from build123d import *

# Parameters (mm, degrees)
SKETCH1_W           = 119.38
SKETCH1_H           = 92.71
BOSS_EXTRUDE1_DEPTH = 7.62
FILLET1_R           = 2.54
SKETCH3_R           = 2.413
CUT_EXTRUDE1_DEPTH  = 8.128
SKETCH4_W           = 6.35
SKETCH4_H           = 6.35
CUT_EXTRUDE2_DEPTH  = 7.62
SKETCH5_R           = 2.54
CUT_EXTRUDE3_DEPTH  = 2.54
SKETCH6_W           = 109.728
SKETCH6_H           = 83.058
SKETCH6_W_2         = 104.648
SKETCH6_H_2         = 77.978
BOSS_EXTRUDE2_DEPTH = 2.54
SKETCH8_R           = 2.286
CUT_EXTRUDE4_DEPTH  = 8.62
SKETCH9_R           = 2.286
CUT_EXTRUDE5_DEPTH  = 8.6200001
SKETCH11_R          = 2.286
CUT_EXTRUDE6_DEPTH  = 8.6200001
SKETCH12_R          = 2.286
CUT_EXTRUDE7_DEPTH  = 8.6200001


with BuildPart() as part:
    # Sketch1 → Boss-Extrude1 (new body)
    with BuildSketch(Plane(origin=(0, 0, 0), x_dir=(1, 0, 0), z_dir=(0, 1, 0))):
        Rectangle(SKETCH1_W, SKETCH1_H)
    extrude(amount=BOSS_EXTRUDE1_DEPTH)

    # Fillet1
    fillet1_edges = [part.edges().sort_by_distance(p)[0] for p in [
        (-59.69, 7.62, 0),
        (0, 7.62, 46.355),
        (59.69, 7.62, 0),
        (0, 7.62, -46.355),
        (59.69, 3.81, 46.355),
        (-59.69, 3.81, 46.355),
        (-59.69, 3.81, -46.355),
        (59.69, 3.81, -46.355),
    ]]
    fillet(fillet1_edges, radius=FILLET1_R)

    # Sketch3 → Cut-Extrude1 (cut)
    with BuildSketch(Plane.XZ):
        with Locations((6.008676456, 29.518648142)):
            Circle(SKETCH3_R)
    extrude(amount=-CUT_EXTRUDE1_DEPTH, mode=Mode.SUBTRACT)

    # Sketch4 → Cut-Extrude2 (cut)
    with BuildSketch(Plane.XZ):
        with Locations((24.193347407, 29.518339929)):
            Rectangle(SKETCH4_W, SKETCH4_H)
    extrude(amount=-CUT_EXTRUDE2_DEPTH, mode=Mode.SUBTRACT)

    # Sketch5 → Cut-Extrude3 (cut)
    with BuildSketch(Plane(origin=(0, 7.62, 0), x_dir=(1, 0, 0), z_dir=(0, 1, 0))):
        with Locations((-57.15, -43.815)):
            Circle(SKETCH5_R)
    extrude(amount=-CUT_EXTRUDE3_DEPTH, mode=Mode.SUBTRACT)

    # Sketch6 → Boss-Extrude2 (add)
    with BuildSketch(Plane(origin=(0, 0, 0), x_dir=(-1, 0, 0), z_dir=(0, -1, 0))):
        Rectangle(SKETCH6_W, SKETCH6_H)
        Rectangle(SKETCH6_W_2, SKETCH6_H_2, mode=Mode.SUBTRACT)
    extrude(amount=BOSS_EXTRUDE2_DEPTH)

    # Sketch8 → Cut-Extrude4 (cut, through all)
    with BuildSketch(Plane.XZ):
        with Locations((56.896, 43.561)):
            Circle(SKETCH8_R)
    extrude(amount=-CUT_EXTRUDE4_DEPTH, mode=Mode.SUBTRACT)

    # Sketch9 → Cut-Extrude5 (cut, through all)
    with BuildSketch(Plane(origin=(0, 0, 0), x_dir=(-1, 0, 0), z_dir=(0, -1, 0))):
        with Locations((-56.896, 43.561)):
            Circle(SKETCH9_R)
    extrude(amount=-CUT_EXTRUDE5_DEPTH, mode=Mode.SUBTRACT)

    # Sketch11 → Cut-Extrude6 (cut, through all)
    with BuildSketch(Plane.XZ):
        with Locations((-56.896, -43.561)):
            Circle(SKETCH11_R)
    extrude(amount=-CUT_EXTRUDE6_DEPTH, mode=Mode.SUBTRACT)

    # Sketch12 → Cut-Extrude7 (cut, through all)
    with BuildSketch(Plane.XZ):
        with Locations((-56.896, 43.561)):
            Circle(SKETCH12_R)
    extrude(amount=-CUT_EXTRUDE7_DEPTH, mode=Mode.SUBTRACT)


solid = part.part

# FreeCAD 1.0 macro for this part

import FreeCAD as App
import Part
import Sketcher
from FreeCAD import Vector
Q = App.Units.Quantity


def edges_at(feature, points):
    """Names of the edges that pass closest to the given points."""
    edges = feature.Shape.Edges
    near = lambda p: min(range(len(edges)), key=lambda i: edges[i].distToShape(Part.Vertex(*p))[0])
    return sorted({f"Edge{near(p) + 1}" for p in points})


def add_polygon(sketch, points):
    """Adds a closed chain of lines whose ends are joined by coincident constraints."""
    first, n = sketch.GeometryCount, len(points)
    for a, b in zip(points, points[1:] + points[:1]):
        sketch.addGeometry(Part.LineSegment(App.Vector(*a, 0), App.Vector(*b, 0)), False)
    for i in range(n):
        sketch.addConstraint(Sketcher.Constraint("Coincident", first + i, 2, first + (i + 1) % n, 1))

doc = App.newDocument("Part")
body = doc.addObject("PartDesign::Body", "Body")

# Sketch on XZ plane
sketch1 = doc.addObject("Sketcher::SketchObject", "Sketch")
body.addObject(sketch1)
sketch1.AttachmentSupport = (doc.XZ_Plane, [""])
sketch1.MapMode = "FlatFace"
add_polygon(sketch1, [(-59.69, -46.355), (-59.69, 46.355), (59.69, 46.355), (59.69, -46.355)])  # lines 0-3
sketch1.addConstraint([
    Sketcher.Constraint("Vertical", 0),
    Sketcher.Constraint("Horizontal", 1),
    Sketcher.Constraint("Vertical", 2),
    Sketcher.Constraint("Horizontal", 3),
    Sketcher.Constraint("Symmetric", 0, 2, 2, 2, -1, 1),
    Sketcher.Constraint("DistanceX", 1, 1, 1, 2, Q("4.7 in")),
    Sketcher.Constraint("DistanceY", 0, 1, 0, 2, Q("3.65 in")),
])
pad1 = doc.addObject("PartDesign::Pad", "Pad")
body.addObject(pad1)
pad1.Profile = sketch1
pad1.Length = Q("0.3 in")
pad1.Reversed = True
doc.recompute()

fillet = doc.addObject("PartDesign::Fillet", "Fillet")
body.addObject(fillet)
fillet.Base = (pad1, edges_at(pad1, [
    (-59.69, 7.62, 0),
    (0, 7.62, 46.355),
    (59.69, 7.62, 0),
    (0, 7.62, -46.355),
    (59.69, 3.81, 46.355),
    (-59.69, 3.81, 46.355),
    (-59.69, 3.81, -46.355),
    (59.69, 3.81, -46.355),
]))
fillet.Radius = Q("0.1 in")

# Sketch on XZ plane
sketch2 = doc.addObject("Sketcher::SketchObject", "Sketch001")
body.addObject(sketch2)
sketch2.AttachmentSupport = (doc.XZ_Plane, [""])
sketch2.MapMode = "FlatFace"
sketch2.addGeometry(Part.Circle(Vector(6.008676, 29.518648, 0), Vector(0, 0, 1), 2.413), False)
sketch2.addConstraint([
    Sketcher.Constraint("Diameter", 0, Q("0.19 in")),
    Sketcher.Constraint("DistanceY", -1, 1, 0, 3, 29.518648),
    Sketcher.Constraint("DistanceX", -1, 1, 0, 3, 6.008676),
])
pocket1 = doc.addObject("PartDesign::Pocket", "Pocket")
body.addObject(pocket1)
pocket1.Profile = sketch2
pocket1.Length = Q("0.32 in")

# Sketch on XZ plane
sketch3 = doc.addObject("Sketcher::SketchObject", "Sketch002")
body.addObject(sketch3)
sketch3.AttachmentSupport = (doc.XZ_Plane, [""])
sketch3.MapMode = "FlatFace"
add_polygon(sketch3, [(21.018347, 32.69334), (21.018347, 26.34334), (27.368347, 26.34334), (27.368347, 32.69334)])  # lines 0-3
sketch3.addConstraint([
    Sketcher.Constraint("Vertical", 0),
    Sketcher.Constraint("Horizontal", 1),
    Sketcher.Constraint("Vertical", 2),
    Sketcher.Constraint("Horizontal", 3),
    Sketcher.Constraint("Equal", 3, 0),
    Sketcher.Constraint("DistanceX", 1, 1, 1, 2, Q("0.25 in")),
    Sketcher.Constraint("DistanceY", -1, 1, 0, 2, 26.34334),
    Sketcher.Constraint("DistanceX", -1, 1, 0, 2, 21.018347),
])
pocket2 = doc.addObject("PartDesign::Pocket", "Pocket001")
body.addObject(pocket2)
pocket2.Profile = sketch3
pocket2.Length = Q("0.3 in")

# Sketch on XZ plane
sketch4 = doc.addObject("Sketcher::SketchObject", "Sketch003")
body.addObject(sketch4)
sketch4.AttachmentSupport = (doc.XZ_Plane, [""])
sketch4.MapMode = "FlatFace"
sketch4.AttachmentOffset = App.Placement(Vector(0, 0, -0.3 * 25.4), App.Rotation())
sketch4.addGeometry(Part.Circle(Vector(-57.15, 43.815, 0), Vector(0, 0, 1), 2.54), False)
sketch4.addConstraint([
    Sketcher.Constraint("Diameter", 0, Q("0.2 in")),
    Sketcher.Constraint("DistanceX", 0, 3, -1, 1, Q("2.25 in")),
    Sketcher.Constraint("DistanceY", -1, 1, 0, 3, Q("1.725 in")),
])
pocket3 = doc.addObject("PartDesign::Pocket", "Pocket002")
body.addObject(pocket3)
pocket3.Profile = sketch4
pocket3.Length = Q("0.1 in")
pocket3.Reversed = True

# Sketch on XZ plane
sketch5 = doc.addObject("Sketcher::SketchObject", "Sketch004")
body.addObject(sketch5)
sketch5.AttachmentSupport = (doc.XZ_Plane, [""])
sketch5.MapMode = "FlatFace"
add_polygon(sketch5, [(54.864, -41.529), (54.864, 41.529), (-54.864, 41.529), (-54.864, -41.529)])  # lines 0-3
add_polygon(sketch5, [(-52.324, 38.989), (52.324, 38.989), (52.324, -38.989), (-52.324, -38.989)])  # lines 4-7
sketch5.addConstraint([
    Sketcher.Constraint("Vertical", 0),
    Sketcher.Constraint("Horizontal", 1),
    Sketcher.Constraint("Vertical", 2),
    Sketcher.Constraint("Horizontal", 3),
    Sketcher.Constraint("Horizontal", 4),
    Sketcher.Constraint("Vertical", 5),
    Sketcher.Constraint("Horizontal", 6),
    Sketcher.Constraint("Vertical", 7),
    Sketcher.Constraint("Symmetric", 0, 2, 2, 2, -1, 1),
    Sketcher.Constraint("Symmetric", 4, 2, 6, 2, -1, 1),
    Sketcher.Constraint("DistanceX", 1, 2, 1, 1, Q("4.32 in")),
    Sketcher.Constraint("DistanceX", 4, 1, 4, 2, Q("4.12 in")),
    Sketcher.Constraint("DistanceY", 0, 1, 0, 2, Q("3.27 in")),
    Sketcher.Constraint("DistanceY", 5, 2, 5, 1, Q("3.07 in")),
])
pad2 = doc.addObject("PartDesign::Pad", "Pad001")
body.addObject(pad2)
pad2.Profile = sketch5
pad2.Length = Q("0.1 in")

# Sketch on XZ plane
sketch6 = doc.addObject("Sketcher::SketchObject", "Sketch005")
body.addObject(sketch6)
sketch6.AttachmentSupport = (doc.XZ_Plane, [""])
sketch6.MapMode = "FlatFace"
sketch6.addGeometry(Part.Circle(Vector(56.896, 43.561, 0), Vector(0, 0, 1), 2.286), False)
sketch6.addConstraint([
    Sketcher.Constraint("Diameter", 0, Q("0.18 in")),
    Sketcher.Constraint("DistanceX", -1, 1, 0, 3, Q("2.24 in")),
    Sketcher.Constraint("DistanceY", -1, 1, 0, 3, Q("1.715 in")),
])
pocket4 = doc.addObject("PartDesign::Pocket", "Pocket003")
body.addObject(pocket4)
pocket4.Profile = sketch6
pocket4.Type = "ThroughAll"

# Sketch on XZ plane
sketch7 = doc.addObject("Sketcher::SketchObject", "Sketch006")
body.addObject(sketch7)
sketch7.AttachmentSupport = (doc.XZ_Plane, [""])
sketch7.MapMode = "FlatFace"
sketch7.addGeometry(Part.Circle(Vector(56.896, -43.561, 0), Vector(0, 0, 1), 2.286), False)
sketch7.addConstraint([
    Sketcher.Constraint("Diameter", 0, Q("0.18 in")),
    Sketcher.Constraint("DistanceX", -1, 1, 0, 3, Q("2.24 in")),
    Sketcher.Constraint("DistanceY", 0, 3, -1, 1, Q("1.715 in")),
])
pocket5 = doc.addObject("PartDesign::Pocket", "Pocket004")
body.addObject(pocket5)
pocket5.Profile = sketch7
pocket5.Type = "ThroughAll"

# Sketch on XZ plane
sketch8 = doc.addObject("Sketcher::SketchObject", "Sketch007")
body.addObject(sketch8)
sketch8.AttachmentSupport = (doc.XZ_Plane, [""])
sketch8.MapMode = "FlatFace"
sketch8.addGeometry(Part.Circle(Vector(-56.896, -43.561, 0), Vector(0, 0, 1), 2.286), False)
sketch8.addConstraint([
    Sketcher.Constraint("Diameter", 0, Q("0.18 in")),
    Sketcher.Constraint("DistanceX", 0, 3, -1, 1, Q("2.24 in")),
    Sketcher.Constraint("DistanceY", 0, 3, -1, 1, Q("1.715 in")),
])
pocket6 = doc.addObject("PartDesign::Pocket", "Pocket005")
body.addObject(pocket6)
pocket6.Profile = sketch8
pocket6.Type = "ThroughAll"

# Sketch on XZ plane
sketch9 = doc.addObject("Sketcher::SketchObject", "Sketch008")
body.addObject(sketch9)
sketch9.AttachmentSupport = (doc.XZ_Plane, [""])
sketch9.MapMode = "FlatFace"
sketch9.addGeometry(Part.Circle(Vector(-56.896, 43.561, 0), Vector(0, 0, 1), 2.286), False)
sketch9.addConstraint([
    Sketcher.Constraint("Diameter", 0, Q("0.18 in")),
    Sketcher.Constraint("DistanceX", 0, 3, -1, 1, Q("2.24 in")),
    Sketcher.Constraint("DistanceY", -1, 1, 0, 3, Q("1.715 in")),
])
pocket7 = doc.addObject("PartDesign::Pocket", "Pocket006")
body.addObject(pocket7)
pocket7.Profile = sketch9
pocket7.Type = "ThroughAll"

doc.recompute()
